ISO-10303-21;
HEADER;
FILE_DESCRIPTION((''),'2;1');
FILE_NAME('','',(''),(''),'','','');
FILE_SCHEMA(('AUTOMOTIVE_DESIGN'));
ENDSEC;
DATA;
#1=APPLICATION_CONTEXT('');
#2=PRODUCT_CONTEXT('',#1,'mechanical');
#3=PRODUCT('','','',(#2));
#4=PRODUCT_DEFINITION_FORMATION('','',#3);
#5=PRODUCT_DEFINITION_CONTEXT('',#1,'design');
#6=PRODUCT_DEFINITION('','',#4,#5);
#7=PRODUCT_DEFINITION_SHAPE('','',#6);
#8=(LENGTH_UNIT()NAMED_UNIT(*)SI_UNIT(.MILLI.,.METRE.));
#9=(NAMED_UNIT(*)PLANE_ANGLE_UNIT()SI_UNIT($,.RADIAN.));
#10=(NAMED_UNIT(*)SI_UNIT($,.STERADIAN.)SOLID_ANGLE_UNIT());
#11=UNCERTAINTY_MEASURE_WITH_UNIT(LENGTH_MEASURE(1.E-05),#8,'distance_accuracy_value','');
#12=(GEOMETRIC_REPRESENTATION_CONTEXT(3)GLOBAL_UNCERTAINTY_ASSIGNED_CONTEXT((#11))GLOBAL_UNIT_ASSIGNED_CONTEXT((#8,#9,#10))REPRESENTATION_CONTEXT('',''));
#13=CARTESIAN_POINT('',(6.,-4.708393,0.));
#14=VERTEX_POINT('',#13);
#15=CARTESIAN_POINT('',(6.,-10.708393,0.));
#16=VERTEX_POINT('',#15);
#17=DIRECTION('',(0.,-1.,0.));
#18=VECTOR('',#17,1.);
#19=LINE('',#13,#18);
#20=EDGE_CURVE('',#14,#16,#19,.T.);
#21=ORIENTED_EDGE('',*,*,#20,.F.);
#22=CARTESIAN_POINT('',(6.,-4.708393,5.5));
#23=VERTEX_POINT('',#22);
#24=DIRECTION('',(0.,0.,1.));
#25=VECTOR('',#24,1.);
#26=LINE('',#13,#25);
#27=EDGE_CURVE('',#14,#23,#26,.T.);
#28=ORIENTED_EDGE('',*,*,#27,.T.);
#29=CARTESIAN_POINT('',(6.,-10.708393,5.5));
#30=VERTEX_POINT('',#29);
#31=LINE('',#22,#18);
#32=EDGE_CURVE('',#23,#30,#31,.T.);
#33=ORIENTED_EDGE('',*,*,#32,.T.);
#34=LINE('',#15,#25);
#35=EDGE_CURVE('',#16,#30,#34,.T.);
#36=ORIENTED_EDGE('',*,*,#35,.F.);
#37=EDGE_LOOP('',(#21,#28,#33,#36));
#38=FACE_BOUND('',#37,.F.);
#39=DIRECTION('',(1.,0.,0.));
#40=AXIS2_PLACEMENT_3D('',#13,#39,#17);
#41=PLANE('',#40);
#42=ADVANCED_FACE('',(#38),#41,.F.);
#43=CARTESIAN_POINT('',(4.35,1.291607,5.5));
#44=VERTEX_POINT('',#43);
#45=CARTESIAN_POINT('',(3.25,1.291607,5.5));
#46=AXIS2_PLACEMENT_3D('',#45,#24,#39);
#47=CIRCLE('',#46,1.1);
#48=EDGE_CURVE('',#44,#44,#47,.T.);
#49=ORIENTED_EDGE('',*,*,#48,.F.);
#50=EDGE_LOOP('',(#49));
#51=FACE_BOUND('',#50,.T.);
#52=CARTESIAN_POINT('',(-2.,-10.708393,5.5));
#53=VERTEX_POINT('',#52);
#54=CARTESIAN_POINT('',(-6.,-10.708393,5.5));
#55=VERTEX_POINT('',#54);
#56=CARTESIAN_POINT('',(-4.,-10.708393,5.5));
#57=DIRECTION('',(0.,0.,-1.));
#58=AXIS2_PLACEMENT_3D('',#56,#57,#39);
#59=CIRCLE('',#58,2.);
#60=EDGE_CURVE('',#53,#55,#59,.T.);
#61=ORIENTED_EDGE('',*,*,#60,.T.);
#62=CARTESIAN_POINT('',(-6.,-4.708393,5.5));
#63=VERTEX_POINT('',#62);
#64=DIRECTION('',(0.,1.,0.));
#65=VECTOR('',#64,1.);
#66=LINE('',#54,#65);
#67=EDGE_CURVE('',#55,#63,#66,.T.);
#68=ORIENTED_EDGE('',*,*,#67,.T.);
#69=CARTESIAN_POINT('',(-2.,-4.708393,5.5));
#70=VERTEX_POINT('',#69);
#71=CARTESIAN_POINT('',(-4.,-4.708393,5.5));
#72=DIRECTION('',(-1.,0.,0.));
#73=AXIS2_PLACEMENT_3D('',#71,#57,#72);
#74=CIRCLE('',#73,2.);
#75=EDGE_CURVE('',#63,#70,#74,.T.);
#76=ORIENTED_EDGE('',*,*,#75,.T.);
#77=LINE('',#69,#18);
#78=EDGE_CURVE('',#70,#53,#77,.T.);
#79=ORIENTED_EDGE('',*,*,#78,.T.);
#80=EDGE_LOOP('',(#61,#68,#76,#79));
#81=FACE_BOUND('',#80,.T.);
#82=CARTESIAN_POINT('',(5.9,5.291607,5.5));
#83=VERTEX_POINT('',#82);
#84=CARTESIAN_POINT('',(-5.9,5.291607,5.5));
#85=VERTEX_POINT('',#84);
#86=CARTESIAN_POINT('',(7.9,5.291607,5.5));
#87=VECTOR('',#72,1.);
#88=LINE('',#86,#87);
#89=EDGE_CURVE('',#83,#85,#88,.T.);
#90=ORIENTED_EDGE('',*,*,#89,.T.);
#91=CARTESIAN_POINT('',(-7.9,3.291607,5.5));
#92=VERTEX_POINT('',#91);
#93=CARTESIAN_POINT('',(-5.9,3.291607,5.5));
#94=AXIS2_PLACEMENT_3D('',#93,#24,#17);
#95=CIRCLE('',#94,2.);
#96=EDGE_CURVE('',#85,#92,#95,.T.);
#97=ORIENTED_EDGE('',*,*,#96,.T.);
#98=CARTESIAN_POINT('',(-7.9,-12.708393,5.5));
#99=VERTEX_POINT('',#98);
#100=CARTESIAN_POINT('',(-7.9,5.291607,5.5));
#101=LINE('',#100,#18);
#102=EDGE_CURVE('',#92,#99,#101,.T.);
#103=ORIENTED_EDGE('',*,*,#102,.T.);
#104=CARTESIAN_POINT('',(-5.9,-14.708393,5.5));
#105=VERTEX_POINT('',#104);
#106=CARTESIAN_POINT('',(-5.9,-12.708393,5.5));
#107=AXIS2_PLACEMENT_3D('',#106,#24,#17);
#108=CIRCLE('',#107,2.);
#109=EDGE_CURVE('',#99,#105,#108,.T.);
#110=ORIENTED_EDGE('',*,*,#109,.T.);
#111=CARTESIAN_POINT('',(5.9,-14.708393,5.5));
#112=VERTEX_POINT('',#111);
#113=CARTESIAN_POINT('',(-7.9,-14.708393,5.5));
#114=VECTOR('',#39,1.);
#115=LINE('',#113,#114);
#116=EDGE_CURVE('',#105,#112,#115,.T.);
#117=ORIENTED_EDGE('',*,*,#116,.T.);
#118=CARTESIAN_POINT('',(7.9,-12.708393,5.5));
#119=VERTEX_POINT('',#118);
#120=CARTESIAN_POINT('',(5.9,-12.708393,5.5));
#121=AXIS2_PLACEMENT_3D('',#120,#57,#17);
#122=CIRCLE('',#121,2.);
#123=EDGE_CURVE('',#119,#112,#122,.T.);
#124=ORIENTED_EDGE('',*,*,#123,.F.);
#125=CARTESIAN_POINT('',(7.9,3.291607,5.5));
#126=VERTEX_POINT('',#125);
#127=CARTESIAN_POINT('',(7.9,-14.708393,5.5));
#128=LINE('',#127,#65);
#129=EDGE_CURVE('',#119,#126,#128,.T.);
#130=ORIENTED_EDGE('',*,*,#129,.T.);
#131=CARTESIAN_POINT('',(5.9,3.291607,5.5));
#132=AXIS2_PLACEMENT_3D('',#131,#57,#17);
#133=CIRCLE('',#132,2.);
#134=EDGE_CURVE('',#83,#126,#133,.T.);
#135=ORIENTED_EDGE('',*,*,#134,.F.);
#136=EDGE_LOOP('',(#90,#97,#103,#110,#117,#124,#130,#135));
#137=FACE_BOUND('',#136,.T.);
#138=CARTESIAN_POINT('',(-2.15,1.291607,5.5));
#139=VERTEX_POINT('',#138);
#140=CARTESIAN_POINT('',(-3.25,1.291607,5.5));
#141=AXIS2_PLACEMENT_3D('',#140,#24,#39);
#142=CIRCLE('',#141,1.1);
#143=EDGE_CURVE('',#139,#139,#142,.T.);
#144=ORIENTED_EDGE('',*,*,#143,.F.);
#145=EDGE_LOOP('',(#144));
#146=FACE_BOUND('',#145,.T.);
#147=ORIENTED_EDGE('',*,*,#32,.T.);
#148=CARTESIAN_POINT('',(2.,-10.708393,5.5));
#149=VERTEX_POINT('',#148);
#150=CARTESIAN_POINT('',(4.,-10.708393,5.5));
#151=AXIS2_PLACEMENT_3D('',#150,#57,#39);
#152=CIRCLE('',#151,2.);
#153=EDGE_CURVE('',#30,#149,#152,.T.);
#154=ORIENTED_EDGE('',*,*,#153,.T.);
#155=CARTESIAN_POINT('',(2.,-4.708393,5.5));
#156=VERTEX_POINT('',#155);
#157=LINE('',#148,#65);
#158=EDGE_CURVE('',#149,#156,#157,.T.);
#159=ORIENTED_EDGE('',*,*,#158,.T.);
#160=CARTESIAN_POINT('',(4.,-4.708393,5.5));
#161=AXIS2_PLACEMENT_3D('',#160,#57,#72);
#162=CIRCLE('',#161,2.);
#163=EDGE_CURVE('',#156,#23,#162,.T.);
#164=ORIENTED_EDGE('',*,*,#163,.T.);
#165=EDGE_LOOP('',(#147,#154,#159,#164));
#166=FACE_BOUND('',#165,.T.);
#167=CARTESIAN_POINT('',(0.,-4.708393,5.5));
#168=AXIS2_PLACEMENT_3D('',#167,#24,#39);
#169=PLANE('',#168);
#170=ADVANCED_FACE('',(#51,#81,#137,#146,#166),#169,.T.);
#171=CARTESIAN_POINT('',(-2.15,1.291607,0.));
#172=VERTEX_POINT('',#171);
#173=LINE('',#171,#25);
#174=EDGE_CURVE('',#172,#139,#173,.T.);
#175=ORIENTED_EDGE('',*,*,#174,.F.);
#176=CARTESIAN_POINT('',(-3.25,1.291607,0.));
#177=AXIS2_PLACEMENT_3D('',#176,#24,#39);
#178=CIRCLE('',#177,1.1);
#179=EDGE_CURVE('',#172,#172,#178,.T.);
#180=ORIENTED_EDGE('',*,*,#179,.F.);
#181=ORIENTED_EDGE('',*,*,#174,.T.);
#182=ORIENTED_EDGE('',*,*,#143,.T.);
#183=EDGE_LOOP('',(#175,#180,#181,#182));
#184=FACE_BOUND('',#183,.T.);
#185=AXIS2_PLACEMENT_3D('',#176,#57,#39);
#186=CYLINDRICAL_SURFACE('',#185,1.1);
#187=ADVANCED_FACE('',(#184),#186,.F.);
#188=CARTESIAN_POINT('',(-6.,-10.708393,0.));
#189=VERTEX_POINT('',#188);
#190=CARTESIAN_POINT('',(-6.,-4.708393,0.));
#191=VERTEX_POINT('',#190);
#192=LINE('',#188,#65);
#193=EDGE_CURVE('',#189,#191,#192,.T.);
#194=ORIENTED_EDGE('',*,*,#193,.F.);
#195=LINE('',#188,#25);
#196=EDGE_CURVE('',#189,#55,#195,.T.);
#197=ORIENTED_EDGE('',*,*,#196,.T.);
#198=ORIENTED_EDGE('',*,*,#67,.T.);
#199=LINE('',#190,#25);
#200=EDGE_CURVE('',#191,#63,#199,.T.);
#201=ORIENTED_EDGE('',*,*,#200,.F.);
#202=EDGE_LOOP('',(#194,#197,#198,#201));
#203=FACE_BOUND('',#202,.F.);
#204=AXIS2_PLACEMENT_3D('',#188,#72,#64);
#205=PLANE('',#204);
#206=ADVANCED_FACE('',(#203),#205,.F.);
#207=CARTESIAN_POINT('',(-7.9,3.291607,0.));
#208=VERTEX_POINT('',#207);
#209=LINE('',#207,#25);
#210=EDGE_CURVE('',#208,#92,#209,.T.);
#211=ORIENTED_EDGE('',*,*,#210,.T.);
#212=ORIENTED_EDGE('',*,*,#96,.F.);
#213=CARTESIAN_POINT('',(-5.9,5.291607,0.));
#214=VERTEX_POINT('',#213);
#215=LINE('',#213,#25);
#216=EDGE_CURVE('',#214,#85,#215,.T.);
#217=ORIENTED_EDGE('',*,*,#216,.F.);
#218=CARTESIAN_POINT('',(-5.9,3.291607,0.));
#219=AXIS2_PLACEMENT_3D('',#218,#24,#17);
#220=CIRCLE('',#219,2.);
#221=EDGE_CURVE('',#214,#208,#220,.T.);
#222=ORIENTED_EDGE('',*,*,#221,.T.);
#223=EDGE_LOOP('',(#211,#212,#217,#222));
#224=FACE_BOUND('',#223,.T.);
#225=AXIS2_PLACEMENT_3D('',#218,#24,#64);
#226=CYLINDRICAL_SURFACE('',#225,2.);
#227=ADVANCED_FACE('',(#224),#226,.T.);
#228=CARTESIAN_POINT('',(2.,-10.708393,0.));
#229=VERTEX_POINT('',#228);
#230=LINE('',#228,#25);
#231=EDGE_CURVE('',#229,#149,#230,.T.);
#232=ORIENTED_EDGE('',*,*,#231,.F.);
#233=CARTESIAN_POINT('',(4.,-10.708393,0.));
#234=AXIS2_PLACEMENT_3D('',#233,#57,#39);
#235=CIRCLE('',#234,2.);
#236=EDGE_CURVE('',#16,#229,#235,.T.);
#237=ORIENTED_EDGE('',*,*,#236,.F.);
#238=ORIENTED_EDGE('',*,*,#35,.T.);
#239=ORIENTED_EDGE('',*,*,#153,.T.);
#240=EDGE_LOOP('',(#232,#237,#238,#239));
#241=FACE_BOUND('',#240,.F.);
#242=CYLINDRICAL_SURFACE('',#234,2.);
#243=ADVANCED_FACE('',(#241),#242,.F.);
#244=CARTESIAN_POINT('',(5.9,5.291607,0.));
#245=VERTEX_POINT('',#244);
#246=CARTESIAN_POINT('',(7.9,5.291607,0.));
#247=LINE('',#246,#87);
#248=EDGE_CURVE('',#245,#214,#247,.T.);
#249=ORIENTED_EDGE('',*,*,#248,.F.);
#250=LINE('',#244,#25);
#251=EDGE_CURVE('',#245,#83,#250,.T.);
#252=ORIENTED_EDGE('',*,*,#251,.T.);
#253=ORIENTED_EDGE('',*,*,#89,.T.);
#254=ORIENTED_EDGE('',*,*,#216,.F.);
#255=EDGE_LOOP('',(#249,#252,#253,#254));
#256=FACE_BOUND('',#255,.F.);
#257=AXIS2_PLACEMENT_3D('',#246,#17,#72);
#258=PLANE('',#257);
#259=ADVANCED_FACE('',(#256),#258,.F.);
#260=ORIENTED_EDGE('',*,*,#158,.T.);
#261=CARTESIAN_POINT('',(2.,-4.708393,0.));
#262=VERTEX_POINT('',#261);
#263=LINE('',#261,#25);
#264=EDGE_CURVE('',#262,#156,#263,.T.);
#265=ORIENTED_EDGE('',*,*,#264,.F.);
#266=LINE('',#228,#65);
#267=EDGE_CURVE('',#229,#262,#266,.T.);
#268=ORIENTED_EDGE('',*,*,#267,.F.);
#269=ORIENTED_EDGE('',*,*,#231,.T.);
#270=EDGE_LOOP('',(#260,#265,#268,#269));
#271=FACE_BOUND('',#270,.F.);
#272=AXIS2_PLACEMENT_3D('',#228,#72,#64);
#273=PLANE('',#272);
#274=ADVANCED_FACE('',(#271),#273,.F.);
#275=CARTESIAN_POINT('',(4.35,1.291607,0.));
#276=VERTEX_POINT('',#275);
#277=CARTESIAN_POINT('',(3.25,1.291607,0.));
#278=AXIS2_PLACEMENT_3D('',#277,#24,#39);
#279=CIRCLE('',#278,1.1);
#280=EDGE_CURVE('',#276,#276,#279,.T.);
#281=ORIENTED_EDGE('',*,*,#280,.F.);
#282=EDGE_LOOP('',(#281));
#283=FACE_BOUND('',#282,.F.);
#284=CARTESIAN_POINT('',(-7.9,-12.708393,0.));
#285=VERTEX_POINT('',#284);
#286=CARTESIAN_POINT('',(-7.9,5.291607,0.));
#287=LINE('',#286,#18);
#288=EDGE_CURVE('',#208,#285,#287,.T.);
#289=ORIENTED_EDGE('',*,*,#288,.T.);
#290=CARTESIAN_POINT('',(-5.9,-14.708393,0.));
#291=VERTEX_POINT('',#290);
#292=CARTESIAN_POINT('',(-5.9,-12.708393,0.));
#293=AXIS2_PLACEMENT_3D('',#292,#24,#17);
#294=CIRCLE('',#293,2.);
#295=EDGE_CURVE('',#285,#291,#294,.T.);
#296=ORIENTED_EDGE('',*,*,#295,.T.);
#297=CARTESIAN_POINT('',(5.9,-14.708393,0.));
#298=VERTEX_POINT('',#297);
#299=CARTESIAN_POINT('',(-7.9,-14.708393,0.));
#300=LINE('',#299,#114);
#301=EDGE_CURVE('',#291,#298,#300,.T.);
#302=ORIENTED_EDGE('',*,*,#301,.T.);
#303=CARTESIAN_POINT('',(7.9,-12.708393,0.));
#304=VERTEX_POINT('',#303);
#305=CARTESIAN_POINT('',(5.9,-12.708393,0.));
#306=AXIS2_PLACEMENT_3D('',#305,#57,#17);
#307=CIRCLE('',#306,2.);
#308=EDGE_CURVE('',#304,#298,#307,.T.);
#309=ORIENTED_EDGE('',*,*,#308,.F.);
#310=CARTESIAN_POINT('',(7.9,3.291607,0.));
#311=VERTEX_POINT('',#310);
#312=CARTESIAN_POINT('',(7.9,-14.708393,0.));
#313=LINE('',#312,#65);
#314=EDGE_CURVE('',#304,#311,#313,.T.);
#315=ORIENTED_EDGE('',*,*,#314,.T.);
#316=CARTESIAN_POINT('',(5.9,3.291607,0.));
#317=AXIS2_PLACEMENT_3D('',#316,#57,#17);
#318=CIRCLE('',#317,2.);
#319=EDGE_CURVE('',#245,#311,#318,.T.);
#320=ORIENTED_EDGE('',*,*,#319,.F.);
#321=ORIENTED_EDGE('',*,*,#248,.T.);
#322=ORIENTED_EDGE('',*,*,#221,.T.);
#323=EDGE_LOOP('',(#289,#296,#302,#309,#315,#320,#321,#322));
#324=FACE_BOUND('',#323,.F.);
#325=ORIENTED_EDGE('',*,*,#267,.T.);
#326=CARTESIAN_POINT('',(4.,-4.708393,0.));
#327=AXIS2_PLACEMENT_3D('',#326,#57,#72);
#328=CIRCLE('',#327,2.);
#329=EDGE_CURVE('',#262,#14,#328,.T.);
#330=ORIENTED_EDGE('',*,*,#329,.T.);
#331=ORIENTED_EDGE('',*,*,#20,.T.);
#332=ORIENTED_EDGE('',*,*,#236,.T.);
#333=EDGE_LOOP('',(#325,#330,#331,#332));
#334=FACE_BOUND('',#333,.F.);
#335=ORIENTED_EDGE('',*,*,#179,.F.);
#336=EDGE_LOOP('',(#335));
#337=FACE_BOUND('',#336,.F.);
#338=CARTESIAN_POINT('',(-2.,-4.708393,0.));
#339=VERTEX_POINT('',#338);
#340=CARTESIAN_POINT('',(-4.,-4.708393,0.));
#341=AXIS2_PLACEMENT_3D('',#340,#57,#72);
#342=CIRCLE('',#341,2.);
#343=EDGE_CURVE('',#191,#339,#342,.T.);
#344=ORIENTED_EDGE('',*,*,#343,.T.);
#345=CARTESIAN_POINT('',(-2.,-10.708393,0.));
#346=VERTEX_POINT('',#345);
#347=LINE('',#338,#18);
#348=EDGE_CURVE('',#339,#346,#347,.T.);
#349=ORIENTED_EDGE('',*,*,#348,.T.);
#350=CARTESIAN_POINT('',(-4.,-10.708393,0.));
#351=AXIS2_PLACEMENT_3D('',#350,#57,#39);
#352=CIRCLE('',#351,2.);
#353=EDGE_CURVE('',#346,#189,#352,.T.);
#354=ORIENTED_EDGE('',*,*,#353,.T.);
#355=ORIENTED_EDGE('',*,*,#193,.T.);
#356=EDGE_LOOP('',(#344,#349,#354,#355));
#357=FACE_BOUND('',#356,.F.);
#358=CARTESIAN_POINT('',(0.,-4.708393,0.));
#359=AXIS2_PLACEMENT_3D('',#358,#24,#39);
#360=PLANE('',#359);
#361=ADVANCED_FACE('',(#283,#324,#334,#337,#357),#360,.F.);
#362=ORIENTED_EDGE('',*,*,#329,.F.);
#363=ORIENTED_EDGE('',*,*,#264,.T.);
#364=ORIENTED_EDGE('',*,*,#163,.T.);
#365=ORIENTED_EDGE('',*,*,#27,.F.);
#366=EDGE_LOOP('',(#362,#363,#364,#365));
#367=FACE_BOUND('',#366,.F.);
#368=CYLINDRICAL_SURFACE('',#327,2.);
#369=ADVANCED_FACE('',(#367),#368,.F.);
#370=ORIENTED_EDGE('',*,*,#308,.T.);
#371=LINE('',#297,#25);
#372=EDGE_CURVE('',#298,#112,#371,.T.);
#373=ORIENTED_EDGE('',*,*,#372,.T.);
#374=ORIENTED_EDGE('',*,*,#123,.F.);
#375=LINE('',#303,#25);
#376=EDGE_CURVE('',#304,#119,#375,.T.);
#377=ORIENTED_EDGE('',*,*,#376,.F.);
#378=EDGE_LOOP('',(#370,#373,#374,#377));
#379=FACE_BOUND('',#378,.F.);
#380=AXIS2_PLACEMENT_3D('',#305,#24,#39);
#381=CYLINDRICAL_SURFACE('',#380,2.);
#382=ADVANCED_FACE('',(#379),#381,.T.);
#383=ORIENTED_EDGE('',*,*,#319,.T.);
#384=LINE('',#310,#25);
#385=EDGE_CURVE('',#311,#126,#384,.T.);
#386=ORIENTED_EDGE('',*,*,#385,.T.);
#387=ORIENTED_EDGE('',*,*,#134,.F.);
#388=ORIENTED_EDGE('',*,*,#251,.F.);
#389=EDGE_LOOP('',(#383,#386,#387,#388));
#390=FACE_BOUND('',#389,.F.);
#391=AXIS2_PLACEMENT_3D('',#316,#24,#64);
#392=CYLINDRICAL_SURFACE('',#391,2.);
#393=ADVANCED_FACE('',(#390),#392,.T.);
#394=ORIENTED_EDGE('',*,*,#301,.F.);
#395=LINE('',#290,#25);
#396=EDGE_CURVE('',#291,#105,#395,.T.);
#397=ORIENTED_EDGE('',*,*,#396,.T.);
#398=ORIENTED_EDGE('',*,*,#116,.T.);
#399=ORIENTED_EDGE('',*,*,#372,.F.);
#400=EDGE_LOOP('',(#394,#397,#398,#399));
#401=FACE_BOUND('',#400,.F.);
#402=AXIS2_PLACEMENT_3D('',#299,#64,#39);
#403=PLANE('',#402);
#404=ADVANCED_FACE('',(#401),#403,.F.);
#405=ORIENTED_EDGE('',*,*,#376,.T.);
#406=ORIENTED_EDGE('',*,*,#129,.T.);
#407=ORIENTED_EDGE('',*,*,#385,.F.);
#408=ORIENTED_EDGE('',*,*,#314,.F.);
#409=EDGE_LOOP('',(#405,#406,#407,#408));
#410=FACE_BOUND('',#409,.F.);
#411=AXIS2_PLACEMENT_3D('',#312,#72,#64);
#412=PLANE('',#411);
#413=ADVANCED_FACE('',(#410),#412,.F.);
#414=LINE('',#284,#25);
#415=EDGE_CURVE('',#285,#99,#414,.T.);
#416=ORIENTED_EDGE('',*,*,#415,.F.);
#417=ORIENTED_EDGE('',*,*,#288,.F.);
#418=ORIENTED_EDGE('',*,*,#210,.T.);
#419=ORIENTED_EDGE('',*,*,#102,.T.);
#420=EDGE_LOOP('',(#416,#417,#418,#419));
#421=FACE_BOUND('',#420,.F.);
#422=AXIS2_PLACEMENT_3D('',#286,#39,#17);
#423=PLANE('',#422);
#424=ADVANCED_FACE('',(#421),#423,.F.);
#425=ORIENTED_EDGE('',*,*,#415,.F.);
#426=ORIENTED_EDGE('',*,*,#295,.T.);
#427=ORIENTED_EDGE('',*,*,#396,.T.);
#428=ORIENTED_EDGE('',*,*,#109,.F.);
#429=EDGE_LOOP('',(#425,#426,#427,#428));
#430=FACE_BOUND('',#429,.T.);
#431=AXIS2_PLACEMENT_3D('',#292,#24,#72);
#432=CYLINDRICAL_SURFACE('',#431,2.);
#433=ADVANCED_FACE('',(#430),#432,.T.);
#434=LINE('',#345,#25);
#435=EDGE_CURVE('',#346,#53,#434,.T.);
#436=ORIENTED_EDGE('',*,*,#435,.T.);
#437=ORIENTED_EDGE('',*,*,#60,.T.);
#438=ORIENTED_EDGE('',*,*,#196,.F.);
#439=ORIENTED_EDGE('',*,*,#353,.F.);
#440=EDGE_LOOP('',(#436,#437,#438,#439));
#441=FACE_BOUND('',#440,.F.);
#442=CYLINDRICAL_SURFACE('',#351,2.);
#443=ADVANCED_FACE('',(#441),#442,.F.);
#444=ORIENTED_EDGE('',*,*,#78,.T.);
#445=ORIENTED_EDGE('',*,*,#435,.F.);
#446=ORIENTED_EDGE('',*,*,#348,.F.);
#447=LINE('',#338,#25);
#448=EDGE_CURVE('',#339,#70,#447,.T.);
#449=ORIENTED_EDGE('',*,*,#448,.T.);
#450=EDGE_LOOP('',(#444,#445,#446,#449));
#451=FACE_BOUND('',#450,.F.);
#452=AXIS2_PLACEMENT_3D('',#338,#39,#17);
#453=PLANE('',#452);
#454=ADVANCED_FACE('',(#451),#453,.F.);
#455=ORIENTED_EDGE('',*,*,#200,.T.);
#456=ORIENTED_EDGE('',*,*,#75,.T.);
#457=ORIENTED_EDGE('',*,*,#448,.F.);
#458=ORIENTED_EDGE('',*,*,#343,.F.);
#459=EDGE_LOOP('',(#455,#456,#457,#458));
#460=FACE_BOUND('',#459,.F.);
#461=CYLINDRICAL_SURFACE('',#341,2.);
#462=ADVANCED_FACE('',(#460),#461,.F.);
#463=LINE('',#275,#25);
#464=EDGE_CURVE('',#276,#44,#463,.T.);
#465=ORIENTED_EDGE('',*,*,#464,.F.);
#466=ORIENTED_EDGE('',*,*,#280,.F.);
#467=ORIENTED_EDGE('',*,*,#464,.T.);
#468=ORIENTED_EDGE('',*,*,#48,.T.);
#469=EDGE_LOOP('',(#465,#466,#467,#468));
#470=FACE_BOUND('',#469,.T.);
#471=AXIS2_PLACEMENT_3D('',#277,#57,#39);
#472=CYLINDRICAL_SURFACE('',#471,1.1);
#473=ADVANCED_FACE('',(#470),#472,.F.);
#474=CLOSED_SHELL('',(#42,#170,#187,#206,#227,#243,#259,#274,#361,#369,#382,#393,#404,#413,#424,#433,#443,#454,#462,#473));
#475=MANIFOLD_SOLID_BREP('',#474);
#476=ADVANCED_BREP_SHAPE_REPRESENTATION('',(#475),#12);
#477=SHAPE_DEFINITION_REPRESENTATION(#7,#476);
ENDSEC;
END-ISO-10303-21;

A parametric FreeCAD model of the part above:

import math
import FreeCAD as App
import Part
import Sketcher
from FreeCAD import Vector


def edges_at(feature, points):
    """Names of the edges that pass closest to the given points."""
    edges = feature.Shape.Edges
    near = lambda p: min(range(len(edges)), key=lambda i: edges[i].distToShape(Part.Vertex(*p))[0])
    return sorted({f"Edge{near(p) + 1}" for p in points})


def add_polygon(sketch, points):
    """Adds a closed chain of lines whose ends are joined by coincident constraints."""
    first, n = sketch.GeometryCount, len(points)
    for a, b in zip(points, points[1:] + points[:1]):
        sketch.addGeometry(Part.LineSegment(App.Vector(*a, 0), App.Vector(*b, 0)), False)
    for i in range(n):
        sketch.addConstraint(Sketcher.Constraint("Coincident", first + i, 2, first + (i + 1) % n, 1))

doc = App.newDocument("Part")
body = doc.addObject("PartDesign::Body", "Body")

# Sketch on XY plane
sketch1 = body.newObject("Sketcher::SketchObject", "Sketch")
sketch1.AttachmentSupport = (doc.getObject("XY_Plane"), [""])
sketch1.MapMode = "FlatFace"
add_polygon(sketch1, [(7.9, 5.291607), (-7.9, 5.291607), (-7.9, -14.708393), (7.9, -14.708393)])  # lines 0-3
sketch1.addGeometry(Part.LineSegment(Vector(-2, -4.708393, 0), Vector(-2, -10.708393, 0)), False)  # 4
sketch1.addGeometry(Part.ArcOfCircle(Part.Circle(Vector(-4, -10.708393, 0), Vector(0, 0, 1), 2), math.radians(180), math.radians(360)), False)  # 5
sketch1.addGeometry(Part.LineSegment(Vector(-6, -10.708393, 0), Vector(-6, -4.708393, 0)), False)  # 6
sketch1.addGeometry(Part.ArcOfCircle(Part.Circle(Vector(-4, -4.708393, 0), Vector(0, 0, 1), 2), math.radians(0), math.radians(180)), False)  # 7
sketch1.addGeometry(Part.ArcOfCircle(Part.Circle(Vector(4, -4.708393, 0), Vector(0, 0, 1), 2), math.radians(0), math.radians(180)), False)  # 8
sketch1.addGeometry(Part.LineSegment(Vector(6, -4.708393, 0), Vector(6, -10.708393, 0)), False)  # 9
sketch1.addGeometry(Part.ArcOfCircle(Part.Circle(Vector(4, -10.708393, 0), Vector(0, 0, 1), 2), math.radians(180), math.radians(360)), False)  # 10
sketch1.addGeometry(Part.LineSegment(Vector(2, -10.708393, 0), Vector(2, -4.708393, 0)), False)  # 11
sketch1.addGeometry(Part.Circle(Vector(-3.25, 1.291607, 0), Vector(0, 0, 1), 1.1), False)  # 12
sketch1.addGeometry(Part.Circle(Vector(3.25, 1.291607, 0), Vector(0, 0, 1), 1.1), False)  # 13
sketch1.addConstraint([
    Sketcher.Constraint("Tangent", 4, 2, 5, 2),
    Sketcher.Constraint("Tangent", 5, 1, 6, 1),
    Sketcher.Constraint("Tangent", 6, 2, 7, 2),
    Sketcher.Constraint("Tangent", 7, 1, 4, 1),
    Sketcher.Constraint("Tangent", 8, 1, 9, 1),
    Sketcher.Constraint("Tangent", 9, 2, 10, 2),
    Sketcher.Constraint("Tangent", 10, 1, 11, 1),
    Sketcher.Constraint("Tangent", 11, 2, 8, 2),
    Sketcher.Constraint("Horizontal", 0),
    Sketcher.Constraint("Vertical", 1),
    Sketcher.Constraint("Horizontal", 2),
    Sketcher.Constraint("Vertical", 3),
    Sketcher.Constraint("Vertical", 4),
    Sketcher.Constraint("Vertical", 6),
    Sketcher.Constraint("Vertical", 9),
    Sketcher.Constraint("Vertical", 11),
    Sketcher.Constraint("Equal", 7, 8),
    Sketcher.Constraint("Equal", 12, 13),
    Sketcher.Constraint("Symmetric", 7, 3, 8, 3, -2),
    Sketcher.Constraint("Symmetric", 12, 3, 13, 3, -2),
    Sketcher.Constraint("Horizontal", 5, 3, 10, 3),
    Sketcher.Constraint("Radius", 5, 2.0),
    Sketcher.Constraint("Diameter", 12, 2.2),
    Sketcher.Constraint("DistanceY", 1, 2, 1, 1, 20.0),
    Sketcher.Constraint("DistanceY", 4, 2, 4, 1, 6.0),
    Sketcher.Constraint("DistanceX", 0, 2, 0, 1, 15.8),
    Sketcher.Constraint("DistanceX", 5, 3, -1, 1, 4.0),
    Sketcher.Constraint("DistanceY", 7, 3, 12, 3, 6.0),
    Sketcher.Constraint("DistanceY", 12, 3, 0, 2, 4.0),
    Sketcher.Constraint("DistanceX", 0, 2, -1, 1, 7.9),
    Sketcher.Constraint("DistanceX", 12, 3, 13, 3, 6.5),
    Sketcher.Constraint("DistanceY", 5, 3, -1, 1, 10.708393),
])
pad1 = body.newObject("PartDesign::Pad", "Pad")
pad1.Profile = sketch1
pad1.Length = 5.5
doc.recompute()

fillet = body.newObject("PartDesign::Fillet", "Fillet")
fillet.Base = (pad1, edges_at(pad1, [
    (7.9, -14.708, 2.75),
    (7.9, 5.292, 2.75),
    (-7.9, -14.708, 2.75),
    (-7.9, 5.292, 2.75),
]))
fillet.Radius = 2

doc.recompute()
